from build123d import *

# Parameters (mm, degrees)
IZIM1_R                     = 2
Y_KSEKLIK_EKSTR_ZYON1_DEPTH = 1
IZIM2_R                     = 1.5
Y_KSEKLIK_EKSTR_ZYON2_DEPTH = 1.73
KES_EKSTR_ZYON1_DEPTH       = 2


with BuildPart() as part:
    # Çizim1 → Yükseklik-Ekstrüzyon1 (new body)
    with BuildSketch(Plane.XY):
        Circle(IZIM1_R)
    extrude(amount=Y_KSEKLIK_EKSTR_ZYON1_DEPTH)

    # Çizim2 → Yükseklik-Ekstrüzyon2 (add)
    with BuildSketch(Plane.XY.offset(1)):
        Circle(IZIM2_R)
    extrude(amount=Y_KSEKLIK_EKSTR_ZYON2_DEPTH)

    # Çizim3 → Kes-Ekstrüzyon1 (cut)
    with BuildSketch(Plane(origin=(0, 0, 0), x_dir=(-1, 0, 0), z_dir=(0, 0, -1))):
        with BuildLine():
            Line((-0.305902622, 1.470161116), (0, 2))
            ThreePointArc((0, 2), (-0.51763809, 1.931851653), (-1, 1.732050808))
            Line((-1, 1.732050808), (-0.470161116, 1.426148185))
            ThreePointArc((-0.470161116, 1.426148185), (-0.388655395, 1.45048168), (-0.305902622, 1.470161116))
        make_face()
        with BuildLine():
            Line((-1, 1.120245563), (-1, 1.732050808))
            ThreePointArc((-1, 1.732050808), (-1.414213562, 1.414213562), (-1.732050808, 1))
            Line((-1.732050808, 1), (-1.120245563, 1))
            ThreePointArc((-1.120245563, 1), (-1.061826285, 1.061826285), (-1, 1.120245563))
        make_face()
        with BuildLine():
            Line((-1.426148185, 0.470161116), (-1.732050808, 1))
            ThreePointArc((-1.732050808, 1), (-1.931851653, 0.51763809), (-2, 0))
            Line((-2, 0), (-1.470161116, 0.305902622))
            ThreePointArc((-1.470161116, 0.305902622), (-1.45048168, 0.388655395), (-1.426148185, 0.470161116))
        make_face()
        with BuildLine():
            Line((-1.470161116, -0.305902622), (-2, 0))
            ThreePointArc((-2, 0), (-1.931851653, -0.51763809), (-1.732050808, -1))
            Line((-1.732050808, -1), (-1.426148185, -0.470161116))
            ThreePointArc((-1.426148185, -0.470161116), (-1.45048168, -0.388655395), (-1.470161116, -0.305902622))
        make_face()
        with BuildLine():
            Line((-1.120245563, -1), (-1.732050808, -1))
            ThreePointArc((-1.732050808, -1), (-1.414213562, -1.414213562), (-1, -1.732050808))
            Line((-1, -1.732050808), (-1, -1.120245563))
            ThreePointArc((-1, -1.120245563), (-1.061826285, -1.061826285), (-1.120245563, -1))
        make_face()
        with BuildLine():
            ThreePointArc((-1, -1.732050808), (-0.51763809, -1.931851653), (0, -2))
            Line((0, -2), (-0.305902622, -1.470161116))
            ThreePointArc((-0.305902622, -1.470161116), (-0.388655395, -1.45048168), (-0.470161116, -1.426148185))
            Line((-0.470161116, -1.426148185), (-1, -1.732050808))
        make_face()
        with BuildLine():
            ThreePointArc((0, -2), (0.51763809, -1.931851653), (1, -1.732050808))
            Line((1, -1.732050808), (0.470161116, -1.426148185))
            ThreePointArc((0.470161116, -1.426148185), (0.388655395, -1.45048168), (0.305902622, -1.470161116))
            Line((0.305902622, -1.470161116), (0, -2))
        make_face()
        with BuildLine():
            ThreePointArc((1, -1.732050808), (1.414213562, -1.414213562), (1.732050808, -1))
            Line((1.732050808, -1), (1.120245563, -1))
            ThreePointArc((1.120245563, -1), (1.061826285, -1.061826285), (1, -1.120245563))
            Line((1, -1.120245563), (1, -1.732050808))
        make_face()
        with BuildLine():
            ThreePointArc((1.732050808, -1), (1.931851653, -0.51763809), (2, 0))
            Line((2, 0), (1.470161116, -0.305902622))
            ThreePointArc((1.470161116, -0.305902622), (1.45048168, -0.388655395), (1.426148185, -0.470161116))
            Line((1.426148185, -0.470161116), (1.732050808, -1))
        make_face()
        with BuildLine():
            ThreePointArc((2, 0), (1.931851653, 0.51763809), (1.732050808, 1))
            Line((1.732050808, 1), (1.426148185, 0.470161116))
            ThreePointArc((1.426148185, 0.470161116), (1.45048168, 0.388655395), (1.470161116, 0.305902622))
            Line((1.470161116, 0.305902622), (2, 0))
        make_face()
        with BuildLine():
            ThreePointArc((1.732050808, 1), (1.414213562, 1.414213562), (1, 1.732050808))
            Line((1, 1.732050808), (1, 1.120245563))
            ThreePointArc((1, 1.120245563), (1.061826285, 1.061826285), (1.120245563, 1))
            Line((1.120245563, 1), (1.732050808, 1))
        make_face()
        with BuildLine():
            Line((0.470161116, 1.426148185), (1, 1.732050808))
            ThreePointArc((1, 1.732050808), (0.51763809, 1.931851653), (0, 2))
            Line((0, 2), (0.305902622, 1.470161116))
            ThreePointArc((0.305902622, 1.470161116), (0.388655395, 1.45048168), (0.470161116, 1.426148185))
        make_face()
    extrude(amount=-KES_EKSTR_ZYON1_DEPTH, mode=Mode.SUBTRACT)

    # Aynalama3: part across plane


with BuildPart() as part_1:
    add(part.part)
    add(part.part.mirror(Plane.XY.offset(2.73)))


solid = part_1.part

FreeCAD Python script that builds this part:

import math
import FreeCAD as App
import Part
import Sketcher

V = App.Vector
Q = App.Units.Quantity

doc = App.newDocument("Part")
body = doc.addObject("PartDesign::Body", "Body")

# Sketch on XY plane
sketch1 = body.newObject("Sketcher::SketchObject", "Sketch")
sketch1.AttachmentSupport = (doc.getObject("XY_Plane"), [""])
sketch1.MapMode = "FlatFace"
sketch1.addGeometry(Part.Circle(V(0, 0, 0), V(0, 0, 1), 2), False)
sketch1.addConstraint([
    Sketcher.Constraint("Coincident", 0, 3, -1, 1),
    Sketcher.Constraint("Diameter", 0, 4.0),
])
pad1 = body.newObject("PartDesign::Pad", "Pad")
pad1.Profile = sketch1
pad1.Length = 1

# Sketch on XY plane
sketch2 = body.newObject("Sketcher::SketchObject", "Sketch001")
sketch2.AttachmentSupport = (doc.getObject("XY_Plane"), [""])
sketch2.MapMode = "FlatFace"
sketch2.AttachmentOffset = App.Placement(V(0, 0, 1), App.Rotation())
sketch2.addGeometry(Part.Circle(V(0, 0, 0), V(0, 0, 1), 1.5), False)
sketch2.addConstraint([
    Sketcher.Constraint("Coincident", 0, 3, -1, 1),
    Sketcher.Constraint("Diameter", 0, 3.0),
])
pad2 = body.newObject("PartDesign::Pad", "Pad001")
pad2.Profile = sketch2
pad2.Length = 1.73

# Sketch on XY plane
sketch3 = body.newObject("Sketcher::SketchObject", "Sketch002")
sketch3.AttachmentSupport = (doc.getObject("XY_Plane"), [""])
sketch3.MapMode = "FlatFace"
sketch3.addGeometry([
    Part.LineSegment(V(0.305903, 1.470161, 0), V(0, 2, 0)),  # 0
    Part.ArcOfCircle(Part.Circle(V(0, 0, 0), V(0, 0, 1), 2), math.radians(60), math.radians(90)),  # 1
    Part.LineSegment(V(1, 1.732051, 0), V(0.470161, 1.426148, 0)),  # 2
    Part.ArcOfCircle(Part.Circle(V(0, 0, 0), V(0, 0, 1), 1.501649), math.radians(71.75406), math.radians(78.24594)),  # 3
    Part.LineSegment(V(1, 1.120246, 0), V(1, 1.732051, 0)),  # 4
    Part.ArcOfCircle(Part.Circle(V(0, 0, 0), V(0, 0, 1), 2), math.radians(30), math.radians(60)),  # 5
    Part.LineSegment(V(1.732051, 1, 0), V(1.120246, 1, 0)),  # 6
    Part.ArcOfCircle(Part.Circle(V(0, 0, 0), V(0, 0, 1), 1.50165), math.radians(41.754061), math.radians(48.245939)),  # 7
    Part.LineSegment(V(1.426148, 0.470161, 0), V(1.732051, 1, 0)),  # 8
    Part.ArcOfCircle(Part.Circle(V(0, 0, 0), V(0, 0, 1), 2), math.radians(0), math.radians(30)),  # 9
    Part.LineSegment(V(2, 0, 0), V(1.470161, 0.305903, 0)),  # 10
    Part.ArcOfCircle(Part.Circle(V(0, 0, 0), V(0, 0, 1), 1.501649), math.radians(11.75406), math.radians(18.24594)),  # 11
    Part.LineSegment(V(1.470161, -0.305903, 0), V(2, 0, 0)),  # 12
    Part.ArcOfCircle(Part.Circle(V(0, 0, 0), V(0, 0, 1), 2), math.radians(-30), math.radians(0)),  # 13
    Part.LineSegment(V(1.732051, -1, 0), V(1.426148, -0.470161, 0)),  # 14
    Part.ArcOfCircle(Part.Circle(V(0, 0, 0), V(0, 0, 1), 1.501649), math.radians(-18.24594), math.radians(-11.75406)),  # 15
    Part.LineSegment(V(1.120246, -1, 0), V(1.732051, -1, 0)),  # 16
    Part.ArcOfCircle(Part.Circle(V(0, 0, 0), V(0, 0, 1), 2), math.radians(-60), math.radians(-30)),  # 17
    Part.LineSegment(V(1, -1.732051, 0), V(1, -1.120246, 0)),  # 18
    Part.ArcOfCircle(Part.Circle(V(0, 0, 0), V(0, 0, 1), 1.50165), math.radians(-48.245939), math.radians(-41.754061)),  # 19
    Part.ArcOfCircle(Part.Circle(V(0, 0, 0), V(0, 0, 1), 2), math.radians(-90), math.radians(-60)),  # 20
    Part.LineSegment(V(0, -2, 0), V(0.305903, -1.470161, 0)),  # 21
    Part.ArcOfCircle(Part.Circle(V(0, 0, 0), V(0, 0, 1), 1.501649), math.radians(-78.24594), math.radians(-71.75406)),  # 22
    Part.LineSegment(V(0.470161, -1.426148, 0), V(1, -1.732051, 0)),  # 23
    Part.ArcOfCircle(Part.Circle(V(0, 0, 0), V(0, 0, 1), 2), math.radians(-120), math.radians(-90)),  # 24
    Part.LineSegment(V(-1, -1.732051, 0), V(-0.470161, -1.426148, 0)),  # 25
    Part.ArcOfCircle(Part.Circle(V(0, 0, 0), V(0, 0, 1), 1.501649), math.radians(-108.24594), math.radians(-101.75406)),  # 26
    Part.LineSegment(V(-0.305903, -1.470161, 0), V(0, -2, 0)),  # 27
    Part.ArcOfCircle(Part.Circle(V(0, 0, 0), V(0, 0, 1), 2), math.radians(-150), math.radians(-120)),  # 28
    Part.LineSegment(V(-1.732051, -1, 0), V(-1.120246, -1, 0)),  # 29
    Part.ArcOfCircle(Part.Circle(V(0, 0, 0), V(0, 0, 1), 1.50165), math.radians(-138.245939), math.radians(-131.754061)),  # 30
    Part.LineSegment(V(-1, -1.120246, 0), V(-1, -1.732051, 0)),  # 31
    Part.ArcOfCircle(Part.Circle(V(0, 0, 0), V(0, 0, 1), 2), math.radians(180), math.radians(210)),  # 32
    Part.LineSegment(V(-2, 0, 0), V(-1.470161, -0.305903, 0)),  # 33
    Part.ArcOfCircle(Part.Circle(V(0, 0, 0), V(0, 0, 1), 1.501649), math.radians(-168.24594), math.radians(-161.75406)),  # 34
    Part.LineSegment(V(-1.426148, -0.470161, 0), V(-1.732051, -1, 0)),  # 35
    Part.ArcOfCircle(Part.Circle(V(0, 0, 0), V(0, 0, 1), 2), math.radians(150), math.radians(180)),  # 36
    Part.LineSegment(V(-1.732051, 1, 0), V(-1.426148, 0.470161, 0)),  # 37
    Part.ArcOfCircle(Part.Circle(V(0, 0, 0), V(0, 0, 1), 1.501649), math.radians(161.75406), math.radians(168.24594)),  # 38
    Part.LineSegment(V(-1.470161, 0.305903, 0), V(-2, 0, 0)),  # 39
    Part.ArcOfCircle(Part.Circle(V(0, 0, 0), V(0, 0, 1), 2), math.radians(120), math.radians(150)),  # 40
    Part.LineSegment(V(-1, 1.732051, 0), V(-1, 1.120246, 0)),  # 41
    Part.ArcOfCircle(Part.Circle(V(0, 0, 0), V(0, 0, 1), 1.50165), math.radians(131.754061), math.radians(138.245939)),  # 42
    Part.LineSegment(V(-1.120246, 1, 0), V(-1.732051, 1, 0)),  # 43
    Part.LineSegment(V(-0.470161, 1.426148, 0), V(-1, 1.732051, 0)),  # 44
    Part.ArcOfCircle(Part.Circle(V(0, 0, 0), V(0, 0, 1), 2), math.radians(90), math.radians(120)),  # 45
    Part.LineSegment(V(0, 2, 0), V(-0.305903, 1.470161, 0)),  # 46
    Part.ArcOfCircle(Part.Circle(V(0, 0, 0), V(0, 0, 1), 1.501649), math.radians(101.75406), math.radians(108.24594)),  # 47
], False)
sketch3.addConstraint([
    Sketcher.Constraint("Coincident", 0, 2, 1, 2),
    Sketcher.Constraint("Coincident", 1, 1, 2, 1),
    Sketcher.Constraint("Coincident", 2, 2, 3, 1),
    Sketcher.Constraint("Coincident", 3, 2, 0, 1),
    Sketcher.Constraint("Coincident", 4, 2, 5, 2),
    Sketcher.Constraint("Coincident", 5, 1, 6, 1),
    Sketcher.Constraint("Coincident", 6, 2, 7, 1),
    Sketcher.Constraint("Coincident", 7, 2, 4, 1),
    Sketcher.Constraint("Coincident", 8, 2, 9, 2),
    Sketcher.Constraint("Coincident", 9, 1, 10, 1),
    Sketcher.Constraint("Coincident", 10, 2, 11, 1),
    Sketcher.Constraint("Coincident", 11, 2, 8, 1),
    Sketcher.Constraint("Coincident", 12, 2, 13, 2),
    Sketcher.Constraint("Coincident", 13, 1, 14, 1),
    Sketcher.Constraint("Coincident", 14, 2, 15, 1),
    Sketcher.Constraint("Coincident", 15, 2, 12, 1),
    Sketcher.Constraint("Coincident", 16, 2, 17, 2),
    Sketcher.Constraint("Coincident", 17, 1, 18, 1),
    Sketcher.Constraint("Coincident", 18, 2, 19, 1),
    Sketcher.Constraint("Coincident", 19, 2, 16, 1),
    Sketcher.Constraint("Coincident", 20, 1, 21, 1),
    Sketcher.Constraint("Coincident", 21, 2, 22, 1),
    Sketcher.Constraint("Coincident", 22, 2, 23, 1),
    Sketcher.Constraint("Coincident", 23, 2, 20, 2),
    Sketcher.Constraint("Coincident", 24, 1, 25, 1),
    Sketcher.Constraint("Coincident", 25, 2, 26, 1),
    Sketcher.Constraint("Coincident", 26, 2, 27, 1),
    Sketcher.Constraint("Coincident", 27, 2, 24, 2),
    Sketcher.Constraint("Coincident", 28, 1, 29, 1),
    Sketcher.Constraint("Coincident", 29, 2, 30, 1),
    Sketcher.Constraint("Coincident", 30, 2, 31, 1),
    Sketcher.Constraint("Coincident", 31, 2, 28, 2),
    Sketcher.Constraint("Coincident", 32, 1, 33, 1),
    Sketcher.Constraint("Coincident", 33, 2, 34, 1),
    Sketcher.Constraint("Coincident", 34, 2, 35, 1),
    Sketcher.Constraint("Coincident", 35, 2, 32, 2),
    Sketcher.Constraint("Coincident", 36, 1, 37, 1),
    Sketcher.Constraint("Coincident", 37, 2, 38, 1),
    Sketcher.Constraint("Coincident", 38, 2, 39, 1),
    Sketcher.Constraint("Coincident", 39, 2, 36, 2),
    Sketcher.Constraint("Coincident", 40, 1, 41, 1),
    Sketcher.Constraint("Coincident", 41, 2, 42, 1),
    Sketcher.Constraint("Coincident", 42, 2, 43, 1),
    Sketcher.Constraint("Coincident", 43, 2, 40, 2),
    Sketcher.Constraint("Coincident", 44, 2, 45, 2),
    Sketcher.Constraint("Coincident", 45, 1, 46, 1),
    Sketcher.Constraint("Coincident", 46, 2, 47, 1),
    Sketcher.Constraint("Coincident", 47, 2, 44, 1),
    Sketcher.Constraint("Vertical", 4),
    Sketcher.Constraint("Horizontal", 6),
    Sketcher.Constraint("Horizontal", 16),
    Sketcher.Constraint("Vertical", 18),
    Sketcher.Constraint("Horizontal", 29),
    Sketcher.Constraint("Vertical", 31),
    Sketcher.Constraint("Vertical", 41),
    Sketcher.Constraint("Horizontal", 43),
    Sketcher.Constraint("Coincident", 1, 3, -1, 1),
    Sketcher.Constraint("Coincident", 3, 3, -1, 1),
    Sketcher.Constraint("Coincident", 5, 3, -1, 1),
    Sketcher.Constraint("Coincident", 7, 3, -1, 1),
    Sketcher.Constraint("Coincident", 9, 3, -1, 1),
    Sketcher.Constraint("Coincident", 11, 3, -1, 1),
    Sketcher.Constraint("Coincident", 13, 3, -1, 1),
    Sketcher.Constraint("Coincident", 15, 3, -1, 1),
    Sketcher.Constraint("Coincident", 17, 3, -1, 1),
    Sketcher.Constraint("Coincident", 19, 3, -1, 1),
    Sketcher.Constraint("Coincident", 20, 3, -1, 1),
    Sketcher.Constraint("Coincident", 22, 3, -1, 1),
    Sketcher.Constraint("Coincident", 24, 3, -1, 1),
    Sketcher.Constraint("Coincident", 26, 3, -1, 1),
    Sketcher.Constraint("Coincident", 28, 3, -1, 1),
    Sketcher.Constraint("Coincident", 30, 3, -1, 1),
    Sketcher.Constraint("Coincident", 32, 3, -1, 1),
    Sketcher.Constraint("Coincident", 34, 3, -1, 1),
    Sketcher.Constraint("Coincident", 36, 3, -1, 1),
    Sketcher.Constraint("Coincident", 38, 3, -1, 1),
    Sketcher.Constraint("Coincident", 40, 3, -1, 1),
    Sketcher.Constraint("Coincident", 42, 3, -1, 1),
    Sketcher.Constraint("Coincident", 45, 3, -1, 1),
    Sketcher.Constraint("Coincident", 47, 3, -1, 1),
    Sketcher.Constraint("Coincident", 4, 2, 1, 1),
    Sketcher.Constraint("Coincident", 8, 2, 5, 1),
    Sketcher.Constraint("Coincident", 12, 2, 9, 1),
    Sketcher.Constraint("Coincident", 16, 2, 13, 1),
    Sketcher.Constraint("Coincident", 23, 2, 17, 1),
    Sketcher.Constraint("Coincident", 27, 2, 20, 1),
    Sketcher.Constraint("Coincident", 31, 2, 24, 1),
    Sketcher.Constraint("Coincident", 35, 2, 28, 1),
    Sketcher.Constraint("Coincident", 39, 2, 32, 1),
    Sketcher.Constraint("Coincident", 43, 2, 36, 1),
    Sketcher.Constraint("Coincident", 44, 2, 40, 1),
    Sketcher.Constraint("Equal", 3, 7),
    Sketcher.Constraint("Equal", 7, 11),
    Sketcher.Constraint("Equal", 11, 15),
    Sketcher.Constraint("Equal", 15, 19),
    Sketcher.Constraint("Equal", 19, 22),
    Sketcher.Constraint("Equal", 22, 26),
    Sketcher.Constraint("Equal", 26, 30),
    Sketcher.Constraint("Equal", 30, 34),
    Sketcher.Constraint("Equal", 34, 38),
    Sketcher.Constraint("Equal", 38, 42),
    Sketcher.Constraint("Equal", 42, 47),
    Sketcher.Constraint("PointOnObject", 0, 2, -2),
    Sketcher.Constraint("PointOnObject", 9, 1, -1),
    Sketcher.Constraint("PointOnObject", 20, 1, -2),
    Sketcher.Constraint("PointOnObject", 32, 1, -1),
    Sketcher.Constraint("PointOnObject", 45, 1, -2),
    Sketcher.Constraint("Perpendicular", 0, 2),
    Sketcher.Constraint("Perpendicular", 8, 10),
    Sketcher.Constraint("Parallel", 2, 12),
    Sketcher.Constraint("Perpendicular", 12, 14),
    Sketcher.Constraint("Perpendicular", 10, 21),
    Sketcher.Constraint("Perpendicular", 21, 23),
    Sketcher.Constraint("Perpendicular", 14, 25),
    Sketcher.Constraint("Perpendicular", 25, 27),
    Sketcher.Constraint("Parallel", 23, 33),
    Sketcher.Constraint("Perpendicular", 33, 35),
    Sketcher.Constraint("Parallel", 27, 37),
    Sketcher.Constraint("Perpendicular", 37, 39),
    Sketcher.Constraint("Perpendicular", 35, 44),
    Sketcher.Constraint("Perpendicular", 44, 46),
    Sketcher.Constraint("Horizontal", 23, 2, 24, 1),
    Sketcher.Constraint("Horizontal", 22, 2, 25, 2),
    Sketcher.Constraint("Horizontal", 19, 2, 28, 1),
    Sketcher.Constraint("Horizontal", 8, 2, 36, 1),
    Sketcher.Constraint("Horizontal", 4, 2, 40, 1),
    Sketcher.Constraint("Vertical", 8, 2, 13, 1),
    Sketcher.Constraint("Vertical", 7, 2, 17, 1),
    Sketcher.Constraint("Equal", 43, 4),
    Sketcher.Constraint("Equal", 0, 2),
    Sketcher.Constraint("Radius", 1, 2.0),
    Sketcher.Constraint("Angle", 0, Q("120 deg")),
    Sketcher.Constraint("Radius", 3, 1.501649),
])
pocket1 = body.newObject("PartDesign::Pocket", "Pocket")
pocket1.Profile = sketch3
pocket1.Length = 2
pocket1.Reversed = True
body2 = doc.addObject("PartDesign::Body", "Body001")
doc.recompute()

body2.BaseFeature = body
doc.recompute()

mirroring = doc.addObject("Part::Mirroring", "Mirroring")
mirroring.Source = body
mirroring.Base = V(0, 0, 2.73)
mirroring.Normal = V(0, 0, 1)
body3 = doc.addObject("PartDesign::Body", "Body002")
body3.BaseFeature = mirroring
boolean = body2.newObject("PartDesign::Boolean", "Boolean")
boolean.Type = "Fuse"
boolean.addObjects([body3])
doc.recompute()
mirroring.Visibility = False

doc.recompute()
